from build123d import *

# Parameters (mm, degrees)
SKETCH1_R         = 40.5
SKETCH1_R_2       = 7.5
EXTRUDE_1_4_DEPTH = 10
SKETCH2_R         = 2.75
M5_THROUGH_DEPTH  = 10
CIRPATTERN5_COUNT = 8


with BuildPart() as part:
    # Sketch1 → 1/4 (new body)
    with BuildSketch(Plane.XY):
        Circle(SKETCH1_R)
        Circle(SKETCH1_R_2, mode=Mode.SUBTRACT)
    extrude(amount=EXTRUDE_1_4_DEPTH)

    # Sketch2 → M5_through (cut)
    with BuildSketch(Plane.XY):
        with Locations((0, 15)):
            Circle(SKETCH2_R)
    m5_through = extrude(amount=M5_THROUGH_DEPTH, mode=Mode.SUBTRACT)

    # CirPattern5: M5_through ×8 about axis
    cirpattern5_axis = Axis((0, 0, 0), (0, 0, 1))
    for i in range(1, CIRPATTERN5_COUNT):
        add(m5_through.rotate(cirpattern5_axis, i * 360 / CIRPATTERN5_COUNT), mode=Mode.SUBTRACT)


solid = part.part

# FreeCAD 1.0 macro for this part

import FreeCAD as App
import Part
import Sketcher
from FreeCAD import Vector

doc = App.newDocument("Part")
params = doc.addObject("Spreadsheet::Sheet", "Params")
for row, (alias, value) in enumerate([
    ("sketch1_diameter", "81 mm"),
    ("sketch1_diameter2", "15 mm"),
    ("pad1_length", "10 mm"),
    ("sketch2_diameter", "5.5 mm"),
    ("pocket1_length", "10 mm"),
], start=1):
    params.set(f"A{row}", alias)
    params.set(f"B{row}", "=" + value)
    params.setAlias(f"B{row}", alias)

body = doc.addObject("PartDesign::Body", "Body")

# Sketch on XY plane
sketch1 = doc.addObject("Sketcher::SketchObject", "Sketch")
body.addObject(sketch1)
sketch1.AttachmentSupport = (doc.XY_Plane, [""])
sketch1.MapMode = "FlatFace"
sketch1.addGeometry([
    Part.Circle(Vector(0, 0, 0), Vector(0, 0, 1), 40),
    Part.Circle(Vector(0, 0, 0), Vector(0, 0, 1), 8),
], False)
sketch1.addConstraint([
    Sketcher.Constraint("Coincident", 0, 3, -1, 1),
    Sketcher.Constraint("Coincident", 1, 3, -1, 1),
    Sketcher.Constraint("Diameter", 0, 81.0),
    Sketcher.Constraint("Diameter", 1, 15.0),
])
sketch1.setExpression("Constraints[2]", "Params.sketch1_diameter")
sketch1.setExpression("Constraints[3]", "Params.sketch1_diameter2")
pad1 = doc.addObject("PartDesign::Pad", "Pad")
body.addObject(pad1)
pad1.Profile = sketch1
pad1.setExpression("Length", "Params.pad1_length")

# Sketch on XY plane
sketch2 = doc.addObject("Sketcher::SketchObject", "Sketch001")
body.addObject(sketch2)
sketch2.AttachmentSupport = (doc.XY_Plane, [""])
sketch2.MapMode = "FlatFace"
sketch2.addGeometry(Part.Circle(Vector(0, 15, 0), Vector(0, 0, 1), 2.8), False)
sketch2.addConstraint([
    Sketcher.Constraint("PointOnObject", 0, 3, -2),
    Sketcher.Constraint("Diameter", 0, 5.5),
    Sketcher.Constraint("DistanceY", -1, 1, 0, 3, 15.0),
])
sketch2.setExpression("Constraints[1]", "Params.sketch2_diameter")
pocket1 = doc.addObject("PartDesign::Pocket", "Pocket")
body.addObject(pocket1)
pocket1.Profile = sketch2
pocket1.setExpression("Length", "Params.pocket1_length")
pocket1.Reversed = True
doc.recompute()

polarpattern = doc.addObject("PartDesign::PolarPattern", "PolarPattern")
body.addObject(polarpattern)
polarpattern.Originals = [pocket1]
polarpattern.Axis = (doc.Z_Axis, [""])
polarpattern.Angle = 360
polarpattern.Occurrences = 8
body.Tip = polarpattern

doc.recompute()
